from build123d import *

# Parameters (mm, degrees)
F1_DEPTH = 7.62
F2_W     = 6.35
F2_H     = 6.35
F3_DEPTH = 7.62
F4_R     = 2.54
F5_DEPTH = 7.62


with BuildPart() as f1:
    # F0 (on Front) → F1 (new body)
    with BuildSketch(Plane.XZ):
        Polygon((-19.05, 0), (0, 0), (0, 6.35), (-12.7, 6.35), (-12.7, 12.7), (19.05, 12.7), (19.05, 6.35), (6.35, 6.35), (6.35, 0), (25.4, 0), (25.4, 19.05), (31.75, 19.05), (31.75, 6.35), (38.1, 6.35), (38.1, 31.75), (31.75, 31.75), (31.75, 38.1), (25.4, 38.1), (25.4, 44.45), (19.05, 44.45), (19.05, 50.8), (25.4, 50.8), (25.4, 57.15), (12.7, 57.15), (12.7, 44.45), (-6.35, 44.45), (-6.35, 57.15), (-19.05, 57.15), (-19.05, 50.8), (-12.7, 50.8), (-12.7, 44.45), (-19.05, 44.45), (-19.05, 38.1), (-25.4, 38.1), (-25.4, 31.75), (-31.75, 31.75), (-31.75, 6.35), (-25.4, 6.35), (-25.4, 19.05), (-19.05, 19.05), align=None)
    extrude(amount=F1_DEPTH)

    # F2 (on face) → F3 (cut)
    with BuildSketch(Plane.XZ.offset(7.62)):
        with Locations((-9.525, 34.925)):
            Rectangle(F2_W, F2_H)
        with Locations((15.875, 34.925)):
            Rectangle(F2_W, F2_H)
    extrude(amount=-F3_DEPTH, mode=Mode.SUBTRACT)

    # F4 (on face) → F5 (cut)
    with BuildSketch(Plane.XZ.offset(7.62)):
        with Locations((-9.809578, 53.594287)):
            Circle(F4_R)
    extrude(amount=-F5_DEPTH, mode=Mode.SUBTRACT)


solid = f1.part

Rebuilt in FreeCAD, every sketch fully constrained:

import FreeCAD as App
import Part
import Sketcher

V = App.Vector
Q = App.Units.Quantity

doc = App.newDocument("Part")
body = doc.addObject("PartDesign::Body", "Body")

sketch1 = doc.addObject("Sketcher::SketchObject", "Sketch")
body.addObject(sketch1)
sketch1.AttachmentSupport = (doc.XZ_Plane, [""])
sketch1.MapMode = "FlatFace"
sketch1.addGeometry([
    Part.LineSegment(V(-19, 0, 0), V(0, 0, 0)),
    Part.LineSegment(V(0, 0, 0), V(0, 6, 0)),
    Part.LineSegment(V(0, 6, 0), V(-13, 6, 0)),
    Part.LineSegment(V(-13, 6, 0), V(-13, 13, 0)),
    Part.LineSegment(V(-13, 13, 0), V(19, 13, 0)),
    Part.LineSegment(V(19, 13, 0), V(19, 6, 0)),
    Part.LineSegment(V(19, 6, 0), V(6, 6, 0)),
    Part.LineSegment(V(6, 6, 0), V(6, 0, 0)),
    Part.LineSegment(V(6, 0, 0), V(25, 0, 0)),
    Part.LineSegment(V(25, 0, 0), V(25, 19, 0)),
    Part.LineSegment(V(25, 19, 0), V(32, 19, 0)),
    Part.LineSegment(V(32, 19, 0), V(32, 6, 0)),
    Part.LineSegment(V(32, 6, 0), V(38, 6, 0)),
    Part.LineSegment(V(38, 6, 0), V(38, 32, 0)),
    Part.LineSegment(V(38, 32, 0), V(32, 32, 0)),
    Part.LineSegment(V(32, 32, 0), V(32, 38, 0)),
    Part.LineSegment(V(32, 38, 0), V(25, 38, 0)),
    Part.LineSegment(V(25, 38, 0), V(25, 44, 0)),
    Part.LineSegment(V(25, 44, 0), V(19, 44, 0)),
    Part.LineSegment(V(19, 44, 0), V(19, 51, 0)),
    Part.LineSegment(V(19, 51, 0), V(25, 51, 0)),
    Part.LineSegment(V(25, 51, 0), V(25, 57, 0)),
    Part.LineSegment(V(25, 57, 0), V(13, 57, 0)),
    Part.LineSegment(V(13, 57, 0), V(13, 44, 0)),
    Part.LineSegment(V(13, 44, 0), V(-6, 44, 0)),
    Part.LineSegment(V(-6, 44, 0), V(-6, 57, 0)),
    Part.LineSegment(V(-6, 57, 0), V(-19, 57, 0)),
    Part.LineSegment(V(-19, 57, 0), V(-19, 51, 0)),
    Part.LineSegment(V(-19, 51, 0), V(-13, 51, 0)),
    Part.LineSegment(V(-13, 51, 0), V(-13, 44, 0)),
    Part.LineSegment(V(-13, 44, 0), V(-19, 44, 0)),
    Part.LineSegment(V(-19, 44, 0), V(-19, 38, 0)),
    Part.LineSegment(V(-19, 38, 0), V(-25, 38, 0)),
    Part.LineSegment(V(-25, 38, 0), V(-25, 32, 0)),
    Part.LineSegment(V(-25, 32, 0), V(-32, 32, 0)),
    Part.LineSegment(V(-32, 32, 0), V(-32, 6, 0)),
    Part.LineSegment(V(-32, 6, 0), V(-25, 6, 0)),
    Part.LineSegment(V(-25, 6, 0), V(-25, 19, 0)),
    Part.LineSegment(V(-25, 19, 0), V(-19, 19, 0)),
    Part.LineSegment(V(-19, 19, 0), V(-19, 0, 0)),
], False)
sketch1.addConstraint([
    Sketcher.Constraint("Coincident", 0, 2, 1, 1),
    Sketcher.Constraint("Coincident", 1, 2, 2, 1),
    Sketcher.Constraint("Coincident", 2, 2, 3, 1),
    Sketcher.Constraint("Coincident", 3, 2, 4, 1),
    Sketcher.Constraint("Coincident", 4, 2, 5, 1),
    Sketcher.Constraint("Coincident", 5, 2, 6, 1),
    Sketcher.Constraint("Coincident", 6, 2, 7, 1),
    Sketcher.Constraint("Coincident", 7, 2, 8, 1),
    Sketcher.Constraint("Coincident", 8, 2, 9, 1),
    Sketcher.Constraint("Coincident", 9, 2, 10, 1),
    Sketcher.Constraint("Coincident", 10, 2, 11, 1),
    Sketcher.Constraint("Coincident", 11, 2, 12, 1),
    Sketcher.Constraint("Coincident", 12, 2, 13, 1),
    Sketcher.Constraint("Coincident", 13, 2, 14, 1),
    Sketcher.Constraint("Coincident", 14, 2, 15, 1),
    Sketcher.Constraint("Coincident", 15, 2, 16, 1),
    Sketcher.Constraint("Coincident", 16, 2, 17, 1),
    Sketcher.Constraint("Coincident", 17, 2, 18, 1),
    Sketcher.Constraint("Coincident", 18, 2, 19, 1),
    Sketcher.Constraint("Coincident", 19, 2, 20, 1),
    Sketcher.Constraint("Coincident", 20, 2, 21, 1),
    Sketcher.Constraint("Coincident", 21, 2, 22, 1),
    Sketcher.Constraint("Coincident", 22, 2, 23, 1),
    Sketcher.Constraint("Coincident", 23, 2, 24, 1),
    Sketcher.Constraint("Coincident", 24, 2, 25, 1),
    Sketcher.Constraint("Coincident", 25, 2, 26, 1),
    Sketcher.Constraint("Coincident", 26, 2, 27, 1),
    Sketcher.Constraint("Coincident", 27, 2, 28, 1),
    Sketcher.Constraint("Coincident", 28, 2, 29, 1),
    Sketcher.Constraint("Coincident", 29, 2, 30, 1),
    Sketcher.Constraint("Coincident", 30, 2, 31, 1),
    Sketcher.Constraint("Coincident", 31, 2, 32, 1),
    Sketcher.Constraint("Coincident", 32, 2, 33, 1),
    Sketcher.Constraint("Coincident", 33, 2, 34, 1),
    Sketcher.Constraint("Coincident", 34, 2, 35, 1),
    Sketcher.Constraint("Coincident", 35, 2, 36, 1),
    Sketcher.Constraint("Coincident", 36, 2, 37, 1),
    Sketcher.Constraint("Coincident", 37, 2, 38, 1),
    Sketcher.Constraint("Coincident", 38, 2, 39, 1),
    Sketcher.Constraint("Coincident", 39, 2, 0, 1),
    Sketcher.Constraint("Horizontal", 0),
    Sketcher.Constraint("Vertical", 1),
    Sketcher.Constraint("Horizontal", 2),
    Sketcher.Constraint("Vertical", 3),
    Sketcher.Constraint("Horizontal", 4),
    Sketcher.Constraint("Vertical", 5),
    Sketcher.Constraint("Horizontal", 6),
    Sketcher.Constraint("Vertical", 7),
    Sketcher.Constraint("Horizontal", 8),
    Sketcher.Constraint("Vertical", 9),
    Sketcher.Constraint("Horizontal", 10),
    Sketcher.Constraint("Vertical", 11),
    Sketcher.Constraint("Horizontal", 12),
    Sketcher.Constraint("Vertical", 13),
    Sketcher.Constraint("Horizontal", 14),
    Sketcher.Constraint("Vertical", 15),
    Sketcher.Constraint("Horizontal", 16),
    Sketcher.Constraint("Vertical", 17),
    Sketcher.Constraint("Horizontal", 18),
    Sketcher.Constraint("Vertical", 19),
    Sketcher.Constraint("Horizontal", 20),
    Sketcher.Constraint("Vertical", 21),
    Sketcher.Constraint("Horizontal", 22),
    Sketcher.Constraint("Vertical", 23),
    Sketcher.Constraint("Horizontal", 24),
    Sketcher.Constraint("Vertical", 25),
    Sketcher.Constraint("Horizontal", 26),
    Sketcher.Constraint("Vertical", 27),
    Sketcher.Constraint("Horizontal", 28),
    Sketcher.Constraint("Vertical", 29),
    Sketcher.Constraint("Horizontal", 30),
    Sketcher.Constraint("Vertical", 31),
    Sketcher.Constraint("Horizontal", 32),
    Sketcher.Constraint("Vertical", 33),
    Sketcher.Constraint("Horizontal", 34),
    Sketcher.Constraint("Vertical", 35),
    Sketcher.Constraint("Horizontal", 36),
    Sketcher.Constraint("Vertical", 37),
    Sketcher.Constraint("Horizontal", 38),
    Sketcher.Constraint("Vertical", 39),
    Sketcher.Constraint("Coincident", 0, 2, -1, 1),
    Sketcher.Constraint("Symmetric", 19, 2, 27, 2, -2),
    Sketcher.Constraint("Symmetric", 23, 2, 29, 2, -2),
    Sketcher.Constraint("Symmetric", 18, 2, 30, 2, -2),
    Sketcher.Constraint("Symmetric", 16, 2, 32, 2, -2),
    Sketcher.Constraint("Symmetric", 14, 2, 34, 2, -2),
    Sketcher.Constraint("Symmetric", 11, 2, 35, 2, -2),
    Sketcher.Constraint("Symmetric", 9, 2, 37, 2, -2),
    Sketcher.Constraint("PointOnObject", 7, 2, -1),
    Sketcher.Constraint("Horizontal", 2, 2, 5, 2),
    Sketcher.Constraint("Horizontal", 6, 2, 11, 2),
    Sketcher.Constraint("Horizontal", 22, 2, 25, 2),
    Sketcher.Constraint("Vertical", 9, 2, 16, 2),
    Sketcher.Constraint("Vertical", 5, 2, 18, 2),
    Sketcher.Constraint("Vertical", 17, 2, 20, 2),
    Sketcher.Constraint("Vertical", 3, 2, 28, 2),
    Sketcher.Constraint("Vertical", 31, 2, 38, 2),
    Sketcher.Constraint("Equal", 2, 6),
    Sketcher.Constraint("Equal", 0, 8),
    Sketcher.Constraint("Equal", 10, 12),
    Sketcher.Constraint("Equal", 16, 18),
    Sketcher.Constraint("Equal", 6, 22),
    Sketcher.Constraint("Equal", 8, 24),
    Sketcher.Constraint("Equal", 38, 1),
    Sketcher.Constraint("Equal", 1, 3),
    Sketcher.Constraint("Equal", 24, 9),
    Sketcher.Constraint("Equal", 7, 15),
    Sketcher.Constraint("Equal", 15, 17),
    Sketcher.Constraint("Equal", 17, 19),
    Sketcher.Constraint("Equal", 19, 21),
    Sketcher.Constraint("DistanceY", 13, 1, 13, 2, Q("1 in")),
    Sketcher.Constraint("DistanceX", 2, 2, 2, 1, Q("0.5 in")),
])
pad1 = doc.addObject("PartDesign::Pad", "Pad")
body.addObject(pad1)
pad1.Profile = sketch1
pad1.Length = Q("0.3 in")

sketch2 = doc.addObject("Sketcher::SketchObject", "Sketch001")
body.addObject(sketch2)
sketch2.AttachmentSupport = (doc.XZ_Plane, [""])
sketch2.MapMode = "FlatFace"
sketch2.AttachmentOffset = App.Placement(V(0, 0, 0.3 * 25.4), App.Rotation())
sketch2.addGeometry([
    Part.LineSegment(V(-13, 38, 0), V(-13, 32, 0)),
    Part.LineSegment(V(-13, 32, 0), V(-6, 32, 0)),
    Part.LineSegment(V(-6, 32, 0), V(-6, 38, 0)),
    Part.LineSegment(V(-6, 38, 0), V(-13, 38, 0)),
    Part.LineSegment(V(13, 38, 0), V(13, 32, 0)),
    Part.LineSegment(V(13, 32, 0), V(19, 32, 0)),
    Part.LineSegment(V(19, 32, 0), V(19, 38, 0)),
    Part.LineSegment(V(19, 38, 0), V(13, 38, 0)),
], False)
sketch2.addConstraint([
    Sketcher.Constraint("Coincident", 0, 2, 1, 1),
    Sketcher.Constraint("Coincident", 1, 2, 2, 1),
    Sketcher.Constraint("Coincident", 2, 2, 3, 1),
    Sketcher.Constraint("Coincident", 3, 2, 0, 1),
    Sketcher.Constraint("Coincident", 4, 2, 5, 1),
    Sketcher.Constraint("Coincident", 5, 2, 6, 1),
    Sketcher.Constraint("Coincident", 6, 2, 7, 1),
    Sketcher.Constraint("Coincident", 7, 2, 4, 1),
    Sketcher.Constraint("Vertical", 0),
    Sketcher.Constraint("Horizontal", 1),
    Sketcher.Constraint("Vertical", 2),
    Sketcher.Constraint("Horizontal", 3),
    Sketcher.Constraint("Vertical", 4),
    Sketcher.Constraint("Horizontal", 5),
    Sketcher.Constraint("Vertical", 6),
    Sketcher.Constraint("Horizontal", 7),
    Sketcher.Constraint("Symmetric", 0, 2, 4, 2, -2),
    Sketcher.Constraint("Horizontal", 3, 2, 6, 2),
    Sketcher.Constraint("Equal", 3, 5),
    Sketcher.Constraint("Equal", 7, 0),
    Sketcher.Constraint("DistanceX", 0, 2, 4, 2, Q("1 in")),
    Sketcher.Constraint("DistanceX", 1, 1, 1, 2, Q("0.25 in")),
    Sketcher.Constraint("DistanceY", -1, 1, 2, 2, Q("1.5 in")),
])
pocket1 = doc.addObject("PartDesign::Pocket", "Pocket")
body.addObject(pocket1)
pocket1.Profile = sketch2
pocket1.Length = Q("0.3 in")

sketch3 = doc.addObject("Sketcher::SketchObject", "Sketch002")
body.addObject(sketch3)
sketch3.AttachmentSupport = (doc.XZ_Plane, [""])
sketch3.MapMode = "FlatFace"
sketch3.AttachmentOffset = App.Placement(V(0, 0, 0.3 * 25.4), App.Rotation())
sketch3.addGeometry(Part.Circle(V(-9.8, 53.6, 0), V(0, 0, 1), 2.5), False)
sketch3.addConstraint([
    Sketcher.Constraint("Diameter", 0, Q("0.2 in")),
    Sketcher.Constraint("DistanceX", 0, 3, -1, 1, Q("9.809578 mm")),
    Sketcher.Constraint("DistanceY", -1, 1, 0, 3, Q("53.594287 mm")),
])
pocket2 = doc.addObject("PartDesign::Pocket", "Pocket001")
body.addObject(pocket2)
pocket2.Profile = sketch3
pocket2.Length = Q("0.3 in")

doc.recompute()
